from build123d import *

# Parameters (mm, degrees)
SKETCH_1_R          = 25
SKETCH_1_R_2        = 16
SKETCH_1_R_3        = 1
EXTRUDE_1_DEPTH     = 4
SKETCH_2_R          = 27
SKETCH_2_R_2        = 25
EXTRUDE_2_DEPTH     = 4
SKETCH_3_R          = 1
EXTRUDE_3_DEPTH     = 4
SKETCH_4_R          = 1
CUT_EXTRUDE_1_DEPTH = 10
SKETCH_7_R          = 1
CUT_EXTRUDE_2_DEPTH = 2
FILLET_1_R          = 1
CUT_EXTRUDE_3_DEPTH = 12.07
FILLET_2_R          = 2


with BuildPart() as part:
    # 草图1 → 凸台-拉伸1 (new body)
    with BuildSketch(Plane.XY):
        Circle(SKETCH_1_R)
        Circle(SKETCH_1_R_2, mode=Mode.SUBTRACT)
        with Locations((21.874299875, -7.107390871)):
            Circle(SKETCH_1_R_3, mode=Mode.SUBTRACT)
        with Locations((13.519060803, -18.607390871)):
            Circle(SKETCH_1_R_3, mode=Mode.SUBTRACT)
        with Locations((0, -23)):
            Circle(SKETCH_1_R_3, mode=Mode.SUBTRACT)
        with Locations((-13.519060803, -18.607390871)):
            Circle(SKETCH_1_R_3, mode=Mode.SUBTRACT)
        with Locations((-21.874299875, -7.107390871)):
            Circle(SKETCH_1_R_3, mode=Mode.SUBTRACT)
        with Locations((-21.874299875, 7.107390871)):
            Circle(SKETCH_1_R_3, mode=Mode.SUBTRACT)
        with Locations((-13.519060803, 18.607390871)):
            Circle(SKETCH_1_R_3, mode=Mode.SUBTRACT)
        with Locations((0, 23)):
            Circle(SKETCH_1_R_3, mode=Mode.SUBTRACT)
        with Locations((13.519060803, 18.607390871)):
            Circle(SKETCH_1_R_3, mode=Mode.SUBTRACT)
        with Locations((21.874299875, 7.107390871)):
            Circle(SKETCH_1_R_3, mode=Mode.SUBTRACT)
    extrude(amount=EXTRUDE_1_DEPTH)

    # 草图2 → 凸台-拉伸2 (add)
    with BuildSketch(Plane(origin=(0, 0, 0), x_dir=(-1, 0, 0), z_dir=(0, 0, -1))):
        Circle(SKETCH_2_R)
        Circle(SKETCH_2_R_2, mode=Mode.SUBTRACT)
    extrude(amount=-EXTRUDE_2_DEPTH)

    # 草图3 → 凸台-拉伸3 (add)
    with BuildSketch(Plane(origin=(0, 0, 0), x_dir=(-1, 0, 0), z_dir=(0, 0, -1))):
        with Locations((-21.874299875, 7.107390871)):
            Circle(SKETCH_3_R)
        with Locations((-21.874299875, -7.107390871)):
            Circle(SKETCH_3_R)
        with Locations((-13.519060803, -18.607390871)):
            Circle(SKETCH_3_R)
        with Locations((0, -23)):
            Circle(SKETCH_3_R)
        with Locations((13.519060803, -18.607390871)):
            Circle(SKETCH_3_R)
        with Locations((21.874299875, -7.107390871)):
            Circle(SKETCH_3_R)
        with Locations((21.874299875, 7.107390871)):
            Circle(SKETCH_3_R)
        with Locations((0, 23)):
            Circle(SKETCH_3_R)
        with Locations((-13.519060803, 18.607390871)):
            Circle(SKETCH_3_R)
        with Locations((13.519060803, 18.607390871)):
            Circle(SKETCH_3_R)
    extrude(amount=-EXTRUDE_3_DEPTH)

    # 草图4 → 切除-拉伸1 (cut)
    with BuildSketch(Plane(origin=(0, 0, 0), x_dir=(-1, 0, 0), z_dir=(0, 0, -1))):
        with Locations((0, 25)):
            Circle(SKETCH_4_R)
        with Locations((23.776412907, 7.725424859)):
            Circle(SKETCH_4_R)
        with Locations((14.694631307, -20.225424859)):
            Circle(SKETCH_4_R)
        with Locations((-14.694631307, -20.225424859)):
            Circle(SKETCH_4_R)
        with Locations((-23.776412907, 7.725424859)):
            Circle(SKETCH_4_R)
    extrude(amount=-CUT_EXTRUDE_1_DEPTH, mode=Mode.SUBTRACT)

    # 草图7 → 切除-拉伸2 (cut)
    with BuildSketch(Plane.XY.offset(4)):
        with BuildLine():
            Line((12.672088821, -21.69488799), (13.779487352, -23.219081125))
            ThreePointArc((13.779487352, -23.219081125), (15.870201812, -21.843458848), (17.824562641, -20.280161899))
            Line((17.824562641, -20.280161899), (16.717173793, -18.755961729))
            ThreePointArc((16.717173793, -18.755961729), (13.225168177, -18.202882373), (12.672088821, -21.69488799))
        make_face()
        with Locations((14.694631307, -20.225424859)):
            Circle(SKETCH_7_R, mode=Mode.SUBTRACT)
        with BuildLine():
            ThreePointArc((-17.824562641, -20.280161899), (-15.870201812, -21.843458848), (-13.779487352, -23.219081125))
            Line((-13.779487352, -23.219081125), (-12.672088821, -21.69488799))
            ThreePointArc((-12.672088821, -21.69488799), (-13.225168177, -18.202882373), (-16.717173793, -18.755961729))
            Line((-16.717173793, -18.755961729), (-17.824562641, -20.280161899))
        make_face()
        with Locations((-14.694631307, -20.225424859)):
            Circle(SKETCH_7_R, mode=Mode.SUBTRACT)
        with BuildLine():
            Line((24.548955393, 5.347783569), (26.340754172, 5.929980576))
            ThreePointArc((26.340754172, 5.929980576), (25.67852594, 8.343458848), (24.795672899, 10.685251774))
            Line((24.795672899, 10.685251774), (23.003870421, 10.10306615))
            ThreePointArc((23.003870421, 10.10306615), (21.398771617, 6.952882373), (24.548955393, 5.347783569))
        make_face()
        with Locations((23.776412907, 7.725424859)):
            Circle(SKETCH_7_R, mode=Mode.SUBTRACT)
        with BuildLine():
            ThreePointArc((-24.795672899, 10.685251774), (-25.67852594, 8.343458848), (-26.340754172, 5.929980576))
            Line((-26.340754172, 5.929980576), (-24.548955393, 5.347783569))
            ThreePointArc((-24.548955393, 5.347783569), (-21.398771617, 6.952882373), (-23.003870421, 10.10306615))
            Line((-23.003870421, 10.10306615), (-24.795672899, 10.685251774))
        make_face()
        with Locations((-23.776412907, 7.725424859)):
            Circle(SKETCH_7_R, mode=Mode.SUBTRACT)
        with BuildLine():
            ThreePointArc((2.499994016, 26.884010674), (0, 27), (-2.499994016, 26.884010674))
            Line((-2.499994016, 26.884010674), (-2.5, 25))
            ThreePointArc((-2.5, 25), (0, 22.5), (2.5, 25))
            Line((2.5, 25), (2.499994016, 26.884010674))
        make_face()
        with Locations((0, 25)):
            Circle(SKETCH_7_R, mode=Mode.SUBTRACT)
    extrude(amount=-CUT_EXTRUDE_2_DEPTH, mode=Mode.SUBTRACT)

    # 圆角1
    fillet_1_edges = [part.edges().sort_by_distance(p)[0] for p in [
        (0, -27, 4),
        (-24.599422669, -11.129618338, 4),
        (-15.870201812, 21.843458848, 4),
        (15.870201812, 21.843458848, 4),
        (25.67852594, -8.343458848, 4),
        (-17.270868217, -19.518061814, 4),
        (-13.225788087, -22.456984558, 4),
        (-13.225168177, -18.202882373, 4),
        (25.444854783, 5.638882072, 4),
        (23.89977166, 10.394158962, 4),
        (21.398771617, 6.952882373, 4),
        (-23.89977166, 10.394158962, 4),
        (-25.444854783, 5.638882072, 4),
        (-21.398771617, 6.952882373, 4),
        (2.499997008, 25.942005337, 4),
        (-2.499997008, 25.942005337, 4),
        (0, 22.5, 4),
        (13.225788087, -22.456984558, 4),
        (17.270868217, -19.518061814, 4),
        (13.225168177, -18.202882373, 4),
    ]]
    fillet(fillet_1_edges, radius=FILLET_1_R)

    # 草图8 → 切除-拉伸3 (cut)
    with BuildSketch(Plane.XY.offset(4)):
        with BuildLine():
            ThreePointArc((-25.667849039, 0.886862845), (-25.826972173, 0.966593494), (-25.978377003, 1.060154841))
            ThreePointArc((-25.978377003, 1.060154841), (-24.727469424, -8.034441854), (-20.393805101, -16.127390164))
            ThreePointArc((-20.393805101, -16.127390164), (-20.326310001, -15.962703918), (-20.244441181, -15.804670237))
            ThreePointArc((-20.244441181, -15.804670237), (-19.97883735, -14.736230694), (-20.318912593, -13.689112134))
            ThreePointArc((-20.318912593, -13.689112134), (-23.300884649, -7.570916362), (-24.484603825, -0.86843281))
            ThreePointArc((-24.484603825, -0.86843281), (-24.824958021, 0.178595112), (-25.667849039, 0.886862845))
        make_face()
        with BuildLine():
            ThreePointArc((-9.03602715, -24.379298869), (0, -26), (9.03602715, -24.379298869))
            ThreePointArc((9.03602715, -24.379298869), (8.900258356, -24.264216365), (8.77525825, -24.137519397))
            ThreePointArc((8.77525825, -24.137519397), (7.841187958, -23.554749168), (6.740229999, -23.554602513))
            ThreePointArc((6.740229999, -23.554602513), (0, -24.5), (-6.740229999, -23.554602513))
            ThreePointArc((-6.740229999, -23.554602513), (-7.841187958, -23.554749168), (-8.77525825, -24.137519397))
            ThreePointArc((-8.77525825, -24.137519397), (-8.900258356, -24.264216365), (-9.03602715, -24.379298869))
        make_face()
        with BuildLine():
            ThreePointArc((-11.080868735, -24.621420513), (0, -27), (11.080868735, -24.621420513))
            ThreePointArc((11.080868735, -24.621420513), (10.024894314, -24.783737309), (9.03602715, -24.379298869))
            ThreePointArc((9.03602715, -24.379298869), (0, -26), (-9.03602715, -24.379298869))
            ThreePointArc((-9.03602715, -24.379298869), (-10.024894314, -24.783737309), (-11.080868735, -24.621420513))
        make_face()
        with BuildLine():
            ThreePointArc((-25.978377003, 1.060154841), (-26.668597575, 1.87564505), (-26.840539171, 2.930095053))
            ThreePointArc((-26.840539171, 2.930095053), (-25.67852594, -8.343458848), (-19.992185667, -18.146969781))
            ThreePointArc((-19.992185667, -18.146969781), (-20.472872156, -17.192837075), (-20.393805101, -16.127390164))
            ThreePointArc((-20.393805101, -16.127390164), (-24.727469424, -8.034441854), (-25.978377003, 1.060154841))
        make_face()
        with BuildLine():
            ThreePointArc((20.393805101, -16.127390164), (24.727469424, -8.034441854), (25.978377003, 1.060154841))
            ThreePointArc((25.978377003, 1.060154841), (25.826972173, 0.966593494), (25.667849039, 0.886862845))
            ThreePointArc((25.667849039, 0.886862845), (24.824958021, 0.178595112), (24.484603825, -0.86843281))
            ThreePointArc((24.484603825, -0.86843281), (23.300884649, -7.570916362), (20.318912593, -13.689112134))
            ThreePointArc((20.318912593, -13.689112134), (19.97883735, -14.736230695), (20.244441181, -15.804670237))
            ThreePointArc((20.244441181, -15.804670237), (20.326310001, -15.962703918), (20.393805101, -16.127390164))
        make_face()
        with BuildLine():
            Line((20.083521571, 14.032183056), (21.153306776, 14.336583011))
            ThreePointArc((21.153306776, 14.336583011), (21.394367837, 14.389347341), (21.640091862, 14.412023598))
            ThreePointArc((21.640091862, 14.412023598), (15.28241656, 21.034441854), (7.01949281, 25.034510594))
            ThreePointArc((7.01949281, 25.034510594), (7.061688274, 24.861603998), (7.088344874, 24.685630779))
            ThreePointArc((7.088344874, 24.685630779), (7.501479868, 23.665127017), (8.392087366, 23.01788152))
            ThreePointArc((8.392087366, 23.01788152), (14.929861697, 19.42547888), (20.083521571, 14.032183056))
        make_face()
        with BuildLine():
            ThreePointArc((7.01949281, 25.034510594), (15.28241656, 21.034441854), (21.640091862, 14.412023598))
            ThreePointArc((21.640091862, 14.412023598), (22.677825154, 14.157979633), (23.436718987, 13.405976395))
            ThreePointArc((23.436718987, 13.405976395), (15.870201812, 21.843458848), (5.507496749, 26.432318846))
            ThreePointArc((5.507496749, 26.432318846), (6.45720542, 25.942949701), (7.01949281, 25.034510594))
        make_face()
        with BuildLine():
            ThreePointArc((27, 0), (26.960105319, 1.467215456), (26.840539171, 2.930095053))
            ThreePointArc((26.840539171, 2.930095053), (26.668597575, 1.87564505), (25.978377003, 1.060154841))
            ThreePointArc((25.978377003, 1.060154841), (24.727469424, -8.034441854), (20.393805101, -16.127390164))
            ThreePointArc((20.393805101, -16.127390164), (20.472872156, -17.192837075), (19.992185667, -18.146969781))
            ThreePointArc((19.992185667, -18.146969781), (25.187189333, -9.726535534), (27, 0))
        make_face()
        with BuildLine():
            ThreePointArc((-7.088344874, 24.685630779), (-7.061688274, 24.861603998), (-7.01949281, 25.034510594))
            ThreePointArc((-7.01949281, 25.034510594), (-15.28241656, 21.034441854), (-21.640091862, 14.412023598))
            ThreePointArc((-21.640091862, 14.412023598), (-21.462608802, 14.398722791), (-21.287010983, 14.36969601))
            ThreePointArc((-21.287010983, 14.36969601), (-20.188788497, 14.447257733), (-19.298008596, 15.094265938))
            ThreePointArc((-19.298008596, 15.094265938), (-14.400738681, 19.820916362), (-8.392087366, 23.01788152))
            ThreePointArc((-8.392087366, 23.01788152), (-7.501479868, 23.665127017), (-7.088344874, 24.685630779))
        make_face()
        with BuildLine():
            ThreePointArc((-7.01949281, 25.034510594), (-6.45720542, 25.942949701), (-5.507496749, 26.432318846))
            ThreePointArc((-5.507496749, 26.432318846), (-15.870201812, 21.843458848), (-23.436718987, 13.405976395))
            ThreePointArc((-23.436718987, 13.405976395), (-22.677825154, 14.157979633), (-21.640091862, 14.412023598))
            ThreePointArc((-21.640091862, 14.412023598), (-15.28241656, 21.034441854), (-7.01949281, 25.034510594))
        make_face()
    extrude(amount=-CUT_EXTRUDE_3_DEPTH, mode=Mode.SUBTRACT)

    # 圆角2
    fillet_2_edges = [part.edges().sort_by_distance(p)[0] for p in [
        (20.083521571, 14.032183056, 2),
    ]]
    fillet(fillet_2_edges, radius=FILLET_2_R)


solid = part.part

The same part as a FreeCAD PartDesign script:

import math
import FreeCAD as App
import Part
import Sketcher
from FreeCAD import Vector


def edges_at(feature, points):
    """Names of the edges that pass closest to the given points."""
    edges = feature.Shape.Edges
    near = lambda p: min(range(len(edges)), key=lambda i: edges[i].distToShape(Part.Vertex(*p))[0])
    return sorted({f"Edge{near(p) + 1}" for p in points})

doc = App.newDocument("Part")
body = doc.addObject("PartDesign::Body", "Body")

# Sketch on XY plane
sketch1 = doc.addObject("Sketcher::SketchObject", "Sketch")
body.addObject(sketch1)
sketch1.AttachmentSupport = (doc.XY_Plane, [""])
sketch1.MapMode = "FlatFace"
sketch1.addGeometry(Part.Circle(Vector(0, 0, 0), Vector(0, 0, 1), 25), False)
sketch1.addGeometry(Part.Circle(Vector(-13.5, -18.6, 0), Vector(0, 0, 1), 1), False)
sketch1.addGeometry(Part.Circle(Vector(-21.9, -7.1, 0), Vector(0, 0, 1), 1), False)
sketch1.addGeometry(Part.Circle(Vector(0, -23, 0), Vector(0, 0, 1), 1), False)
sketch1.addGeometry(Part.Circle(Vector(13.5, -18.6, 0), Vector(0, 0, 1), 1), False)
sketch1.addGeometry(Part.Circle(Vector(21.9, -7.1, 0), Vector(0, 0, 1), 1), False)
sketch1.addGeometry(Part.Circle(Vector(-21.9, 7.1, 0), Vector(0, 0, 1), 1), False)
sketch1.addGeometry(Part.Circle(Vector(-13.5, 18.6, 0), Vector(0, 0, 1), 1), False)
sketch1.addGeometry(Part.Circle(Vector(0, 0, 0), Vector(0, 0, 1), 16), False)
sketch1.addGeometry(Part.Circle(Vector(21.9, 7.1, 0), Vector(0, 0, 1), 1), False)
sketch1.addGeometry(Part.Circle(Vector(0, 23, 0), Vector(0, 0, 1), 1), False)
sketch1.addGeometry(Part.Circle(Vector(13.5, 18.6, 0), Vector(0, 0, 1), 1), False)
sketch1.addConstraint(Sketcher.Constraint("Coincident", 0, 3, -1, 1))
sketch1.addConstraint(Sketcher.Constraint("Coincident", 8, 3, -1, 1))
sketch1.addConstraint(Sketcher.Constraint("Equal", 1, 2))
sketch1.addConstraint(Sketcher.Constraint("Equal", 2, 3))
sketch1.addConstraint(Sketcher.Constraint("Equal", 3, 4))
sketch1.addConstraint(Sketcher.Constraint("Equal", 4, 5))
sketch1.addConstraint(Sketcher.Constraint("Equal", 5, 6))
sketch1.addConstraint(Sketcher.Constraint("Equal", 6, 7))
sketch1.addConstraint(Sketcher.Constraint("Equal", 7, 9))
sketch1.addConstraint(Sketcher.Constraint("Equal", 9, 10))
sketch1.addConstraint(Sketcher.Constraint("Equal", 10, 11))
sketch1.addConstraint(Sketcher.Constraint("Symmetric", 5, 3, 6, 3, -1, 1))
sketch1.addConstraint(Sketcher.Constraint("Symmetric", 4, 3, 7, 3, -1, 1))
sketch1.addConstraint(Sketcher.Constraint("Symmetric", 2, 3, 9, 3, -1, 1))
sketch1.addConstraint(Sketcher.Constraint("Symmetric", 3, 3, 10, 3, -1, 1))
sketch1.addConstraint(Sketcher.Constraint("Symmetric", 1, 3, 11, 3, -1, 1))
sketch1.addConstraint(Sketcher.Constraint("Symmetric", 1, 3, 4, 3, -2))
sketch1.addConstraint(Sketcher.Constraint("Symmetric", 2, 3, 5, 3, -2))
sketch1.addConstraint(Sketcher.Constraint("PointOnObject", 3, 3, -2))
sketch1.addConstraint(Sketcher.Constraint("Diameter", 0, 50.0))
sketch1.addConstraint(Sketcher.Constraint("Diameter", 1, 2.0))
sketch1.addConstraint(Sketcher.Constraint("Diameter", 8, 32.0))
sketch1.addConstraint(Sketcher.Constraint("DistanceY", 3, 3, -1, 1, 23.0))
sketch1.addConstraint(Sketcher.Constraint("DistanceY", 1, 3, 2, 3, 11.5))
sketch1.addConstraint(Sketcher.Constraint("DistanceX", 2, 3, -1, 1, 21.8743))
sketch1.addConstraint(Sketcher.Constraint("DistanceX", 1, 3, -1, 1, 13.519061))
sketch1.addConstraint(Sketcher.Constraint("DistanceY", 1, 3, -1, 1, 18.607391))
pad1 = doc.addObject("PartDesign::Pad", "Pad")
body.addObject(pad1)
pad1.Profile = sketch1
pad1.Length = 4

# Sketch on XY plane
sketch2 = doc.addObject("Sketcher::SketchObject", "Sketch001")
body.addObject(sketch2)
sketch2.AttachmentSupport = (doc.XY_Plane, [""])
sketch2.MapMode = "FlatFace"
sketch2.addGeometry(Part.Circle(Vector(0, 0, 0), Vector(0, 0, 1), 27), False)
sketch2.addGeometry(Part.Circle(Vector(0, 0, 0), Vector(0, 0, 1), 25), False)
sketch2.addConstraint(Sketcher.Constraint("Coincident", 0, 3, -1, 1))
sketch2.addConstraint(Sketcher.Constraint("Coincident", 1, 3, -1, 1))
sketch2.addConstraint(Sketcher.Constraint("Diameter", 0, 54.0))
sketch2.addConstraint(Sketcher.Constraint("Diameter", 1, 50.0))
pad2 = doc.addObject("PartDesign::Pad", "Pad001")
body.addObject(pad2)
pad2.Profile = sketch2
pad2.Length = 4

# Sketch on XY plane
sketch3 = doc.addObject("Sketcher::SketchObject", "Sketch002")
body.addObject(sketch3)
sketch3.AttachmentSupport = (doc.XY_Plane, [""])
sketch3.MapMode = "FlatFace"
sketch3.addGeometry(Part.Circle(Vector(21.9, 7.1, 0), Vector(0, 0, 1), 1), False)
sketch3.addGeometry(Part.Circle(Vector(21.9, -7.1, 0), Vector(0, 0, 1), 1), False)
sketch3.addGeometry(Part.Circle(Vector(13.5, -18.6, 0), Vector(0, 0, 1), 1), False)
sketch3.addGeometry(Part.Circle(Vector(0, -23, 0), Vector(0, 0, 1), 1), False)
sketch3.addGeometry(Part.Circle(Vector(-13.5, -18.6, 0), Vector(0, 0, 1), 1), False)
sketch3.addGeometry(Part.Circle(Vector(-21.9, -7.1, 0), Vector(0, 0, 1), 1), False)
sketch3.addGeometry(Part.Circle(Vector(-21.9, 7.1, 0), Vector(0, 0, 1), 1), False)
sketch3.addGeometry(Part.Circle(Vector(0, 23, 0), Vector(0, 0, 1), 1), False)
sketch3.addGeometry(Part.Circle(Vector(13.5, 18.6, 0), Vector(0, 0, 1), 1), False)
sketch3.addGeometry(Part.Circle(Vector(-13.5, 18.6, 0), Vector(0, 0, 1), 1), False)
sketch3.addConstraint(Sketcher.Constraint("Equal", 0, 1))
sketch3.addConstraint(Sketcher.Constraint("Equal", 1, 2))
sketch3.addConstraint(Sketcher.Constraint("Equal", 2, 3))
sketch3.addConstraint(Sketcher.Constraint("Equal", 3, 4))
sketch3.addConstraint(Sketcher.Constraint("Equal", 4, 5))
sketch3.addConstraint(Sketcher.Constraint("Equal", 5, 6))
sketch3.addConstraint(Sketcher.Constraint("Equal", 6, 7))
sketch3.addConstraint(Sketcher.Constraint("Equal", 7, 8))
sketch3.addConstraint(Sketcher.Constraint("Equal", 8, 9))
sketch3.addConstraint(Sketcher.Constraint("Symmetric", 0, 3, 5, 3, -1, 1))
sketch3.addConstraint(Sketcher.Constraint("Symmetric", 1, 3, 6, 3, -1, 1))
sketch3.addConstraint(Sketcher.Constraint("Symmetric", 3, 3, 7, 3, -1, 1))
sketch3.addConstraint(Sketcher.Constraint("Symmetric", 4, 3, 8, 3, -1, 1))
sketch3.addConstraint(Sketcher.Constraint("Symmetric", 2, 3, 9, 3, -1, 1))
sketch3.addConstraint(Sketcher.Constraint("Symmetric", 2, 3, 4, 3, -2))
sketch3.addConstraint(Sketcher.Constraint("Symmetric", 1, 3, 5, 3, -2))
sketch3.addConstraint(Sketcher.Constraint("PointOnObject", 3, 3, -2))
sketch3.addConstraint(Sketcher.Constraint("Diameter", 0, 2.0))
sketch3.addConstraint(Sketcher.Constraint("DistanceY", 3, 3, -1, 1, 23.0))
sketch3.addConstraint(Sketcher.Constraint("DistanceY", 2, 3, 1, 3, 11.5))
sketch3.addConstraint(Sketcher.Constraint("DistanceX", -1, 1, 0, 3, 21.8743))
sketch3.addConstraint(Sketcher.Constraint("DistanceY", -1, 1, 0, 3, 7.107391))
sketch3.addConstraint(Sketcher.Constraint("DistanceX", -1, 1, 2, 3, 13.519061))
pad3 = doc.addObject("PartDesign::Pad", "Pad002")
body.addObject(pad3)
pad3.Profile = sketch3
pad3.Length = 4

# Sketch on XY plane
sketch4 = doc.addObject("Sketcher::SketchObject", "Sketch003")
body.addObject(sketch4)
sketch4.AttachmentSupport = (doc.XY_Plane, [""])
sketch4.MapMode = "FlatFace"
sketch4.addGeometry(Part.Circle(Vector(0, 25, 0), Vector(0, 0, 1), 1), False)
sketch4.addGeometry(Part.Circle(Vector(-23.8, 7.7, 0), Vector(0, 0, 1), 1), False)
sketch4.addGeometry(Part.Circle(Vector(-14.7, -20.2, 0), Vector(0, 0, 1), 1), False)
sketch4.addGeometry(Part.Circle(Vector(14.7, -20.2, 0), Vector(0, 0, 1), 1), False)
sketch4.addGeometry(Part.Circle(Vector(23.8, 7.7, 0), Vector(0, 0, 1), 1), False)
sketch4.addConstraint(Sketcher.Constraint("Equal", 0, 1))
sketch4.addConstraint(Sketcher.Constraint("Equal", 1, 2))
sketch4.addConstraint(Sketcher.Constraint("Equal", 2, 3))
sketch4.addConstraint(Sketcher.Constraint("Equal", 3, 4))
sketch4.addConstraint(Sketcher.Constraint("Symmetric", 2, 3, 3, 3, -2))
sketch4.addConstraint(Sketcher.Constraint("Symmetric", 1, 3, 4, 3, -2))
sketch4.addConstraint(Sketcher.Constraint("PointOnObject", 0, 3, -2))
sketch4.addConstraint(Sketcher.Constraint("Diameter", 0, 2.0))
sketch4.addConstraint(Sketcher.Constraint("DistanceY", -1, 1, 0, 3, 25.0))
sketch4.addConstraint(Sketcher.Constraint("DistanceX", 2, 3, -1, 1, 14.694631))
sketch4.addConstraint(Sketcher.Constraint("DistanceX", 1, 3, 2, 3, 9.081782))
sketch4.addConstraint(Sketcher.Constraint("DistanceY", 2, 3, 1, 3, 27.95085))
sketch4.addConstraint(Sketcher.Constraint("DistanceY", -1, 1, 1, 3, 7.725425))
pocket1 = doc.addObject("PartDesign::Pocket", "Pocket")
body.addObject(pocket1)
pocket1.Profile = sketch4
pocket1.Length = 10
pocket1.Reversed = True

# Sketch on XY plane
sketch5 = doc.addObject("Sketcher::SketchObject", "Sketch004")
body.addObject(sketch5)
sketch5.AttachmentSupport = (doc.XY_Plane, [""])
sketch5.MapMode = "FlatFace"
sketch5.AttachmentOffset = App.Placement(Vector(0, 0, 4), App.Rotation())
sketch5.addGeometry(Part.LineSegment(Vector(12.7, -21.7, 0), Vector(13.8, -23.2, 0)), False)
sketch5.addGeometry(Part.ArcOfCircle(Part.Circle(Vector(0, 0, 0), Vector(0, 0, 1), 27), math.radians(-59.31), math.radians(-48.69)), False)
sketch5.addGeometry(Part.LineSegment(Vector(17.8, -20.3, 0), Vector(16.7, -18.8, 0)), False)
sketch5.addGeometry(Part.ArcOfCircle(Part.Circle(Vector(14.7, -20.2, 0), Vector(0, 0, 1), 2.5), math.radians(36), math.radians(216)), False)
sketch5.addGeometry(Part.Circle(Vector(14.7, -20.2, 0), Vector(0, 0, 1), 1), False)
sketch5.addGeometry(Part.ArcOfCircle(Part.Circle(Vector(0, 0, 0), Vector(0, 0, 1), 27), math.radians(-131.31), math.radians(-120.69)), False)
sketch5.addGeometry(Part.LineSegment(Vector(-13.8, -23.2, 0), Vector(-12.7, -21.7, 0)), False)
sketch5.addGeometry(Part.ArcOfCircle(Part.Circle(Vector(-14.7, -20.2, 0), Vector(0, 0, 1), 2.5), math.radians(-36), math.radians(144)), False)
sketch5.addGeometry(Part.LineSegment(Vector(-16.7, -18.8, 0), Vector(-17.8, -20.3, 0)), False)
sketch5.addGeometry(Part.Circle(Vector(-14.7, -20.2, 0), Vector(0, 0, 1), 1), False)
sketch5.addGeometry(Part.LineSegment(Vector(24.5, 5.3, 0), Vector(26.3, 5.9, 0)), False)
sketch5.addGeometry(Part.ArcOfCircle(Part.Circle(Vector(0, 0, 0), Vector(0, 0, 1), 27), math.radians(12.69), math.radians(23.31)), False)
sketch5.addGeometry(Part.LineSegment(Vector(24.8, 10.7, 0), Vector(23, 10.1, 0)), False)
sketch5.addGeometry(Part.ArcOfCircle(Part.Circle(Vector(23.8, 7.7, 0), Vector(0, 0, 1), 2.5), math.radians(108), math.radians(288)), False)
sketch5.addGeometry(Part.Circle(Vector(23.8, 7.7, 0), Vector(0, 0, 1), 1), False)
sketch5.addGeometry(Part.ArcOfCircle(Part.Circle(Vector(0, 0, 0), Vector(0, 0, 1), 27), math.radians(156.69), math.radians(167.31)), False)
sketch5.addGeometry(Part.LineSegment(Vector(-26.3, 5.9, 0), Vector(-24.5, 5.3, 0)), False)
sketch5.addGeometry(Part.ArcOfCircle(Part.Circle(Vector(-23.8, 7.7, 0), Vector(0, 0, 1), 2.5), math.radians(-108), math.radians(72)), False)
sketch5.addGeometry(Part.LineSegment(Vector(-23, 10.1, 0), Vector(-24.8, 10.7, 0)), False)
sketch5.addGeometry(Part.Circle(Vector(-23.8, 7.7, 0), Vector(0, 0, 1), 1), False)
sketch5.addGeometry(Part.ArcOfCircle(Part.Circle(Vector(0, 0, 0), Vector(0, 0, 1), 27), math.radians(84.69), math.radians(95.31)), False)
sketch5.addGeometry(Part.LineSegment(Vector(-2.5, 26.9, 0), Vector(-2.5, 25, 0)), False)
sketch5.addGeometry(Part.ArcOfCircle(Part.Circle(Vector(0, 25, 0), Vector(0, 0, 1), 2.5), math.radians(180), math.radians(360)), False)
sketch5.addGeometry(Part.LineSegment(Vector(2.5, 25, 0), Vector(2.5, 26.9, 0)), False)
sketch5.addGeometry(Part.Circle(Vector(0, 25, 0), Vector(0, 0, 1), 1), False)
sketch5.addConstraint(Sketcher.Constraint("Coincident", 0, 2, 1, 1))
sketch5.addConstraint(Sketcher.Constraint("Coincident", 1, 2, 2, 1))
sketch5.addConstraint(Sketcher.Constraint("Coincident", 2, 2, 3, 1))
sketch5.addConstraint(Sketcher.Constraint("Coincident", 3, 2, 0, 1))
sketch5.addConstraint(Sketcher.Constraint("Coincident", 5, 2, 6, 1))
sketch5.addConstraint(Sketcher.Constraint("Coincident", 6, 2, 7, 1))
sketch5.addConstraint(Sketcher.Constraint("Coincident", 7, 2, 8, 1))
sketch5.addConstraint(Sketcher.Constraint("Coincident", 8, 2, 5, 1))
sketch5.addConstraint(Sketcher.Constraint("Coincident", 10, 2, 11, 1))
sketch5.addConstraint(Sketcher.Constraint("Coincident", 11, 2, 12, 1))
sketch5.addConstraint(Sketcher.Constraint("Coincident", 12, 2, 13, 1))
sketch5.addConstraint(Sketcher.Constraint("Coincident", 13, 2, 10, 1))
sketch5.addConstraint(Sketcher.Constraint("Coincident", 15, 2, 16, 1))
sketch5.addConstraint(Sketcher.Constraint("Coincident", 16, 2, 17, 1))
sketch5.addConstraint(Sketcher.Constraint("Coincident", 17, 2, 18, 1))
sketch5.addConstraint(Sketcher.Constraint("Coincident", 18, 2, 15, 1))
sketch5.addConstraint(Sketcher.Constraint("Coincident", 20, 2, 21, 1))
sketch5.addConstraint(Sketcher.Constraint("Coincident", 21, 2, 22, 1))
sketch5.addConstraint(Sketcher.Constraint("Coincident", 22, 2, 23, 1))
sketch5.addConstraint(Sketcher.Constraint("Coincident", 23, 2, 20, 1))
sketch5.addConstraint(Sketcher.Constraint("Coincident", 1, 3, -1, 1))
sketch5.addConstraint(Sketcher.Constraint("Coincident", 5, 3, -1, 1))
sketch5.addConstraint(Sketcher.Constraint("Coincident", 11, 3, -1, 1))
sketch5.addConstraint(Sketcher.Constraint("Coincident", 15, 3, -1, 1))
sketch5.addConstraint(Sketcher.Constraint("Coincident", 20, 3, -1, 1))
sketch5.addConstraint(Sketcher.Constraint("Coincident", 4, 3, 3, 3))
sketch5.addConstraint(Sketcher.Constraint("Coincident", 9, 3, 7, 3))
sketch5.addConstraint(Sketcher.Constraint("Coincident", 14, 3, 13, 3))
sketch5.addConstraint(Sketcher.Constraint("Coincident", 19, 3, 17, 3))
sketch5.addConstraint(Sketcher.Constraint("Coincident", 24, 3, 22, 3))
sketch5.addConstraint(Sketcher.Constraint("Equal", 1, 5))
sketch5.addConstraint(Sketcher.Constraint("Equal", 3, 7))
sketch5.addConstraint(Sketcher.Constraint("Equal", 4, 9))
sketch5.addConstraint(Sketcher.Constraint("Equal", 5, 11))
sketch5.addConstraint(Sketcher.Constraint("Equal", 7, 13))
sketch5.addConstraint(Sketcher.Constraint("Equal", 9, 14))
sketch5.addConstraint(Sketcher.Constraint("Equal", 11, 15))
sketch5.addConstraint(Sketcher.Constraint("Equal", 13, 17))
sketch5.addConstraint(Sketcher.Constraint("Equal", 14, 19))
sketch5.addConstraint(Sketcher.Constraint("Equal", 15, 20))
sketch5.addConstraint(Sketcher.Constraint("Equal", 17, 22))
sketch5.addConstraint(Sketcher.Constraint("Equal", 19, 24))
sketch5.addConstraint(Sketcher.Constraint("Symmetric", 3, 3, 7, 3, -2))
sketch5.addConstraint(Sketcher.Constraint("Symmetric", 13, 3, 17, 3, -2))
sketch5.addConstraint(Sketcher.Constraint("Symmetric", 21, 2, 22, 2, -2))
sketch5.addConstraint(Sketcher.Constraint("Horizontal", 0, 2, 5, 2))
sketch5.addConstraint(Sketcher.Constraint("Horizontal", 3, 2, 6, 2))
sketch5.addConstraint(Sketcher.Constraint("Horizontal", 2, 2, 7, 2))
sketch5.addConstraint(Sketcher.Constraint("Horizontal", 1, 2, 8, 2))
sketch5.addConstraint(Sketcher.Constraint("Horizontal", 10, 2, 15, 2))
sketch5.addConstraint(Sketcher.Constraint("Horizontal", 13, 2, 16, 2))
sketch5.addConstraint(Sketcher.Constraint("Horizontal", 12, 2, 17, 2))
sketch5.addConstraint(Sketcher.Constraint("Horizontal", 11, 2, 18, 2))
sketch5.addConstraint(Sketcher.Constraint("Horizontal", 24, 3, 21, 2))
sketch5.addConstraint(Sketcher.Constraint("Horizontal", 20, 2, 23, 2))
sketch5.addConstraint(Sketcher.Constraint("Equal", 0, 2))
sketch5.addConstraint(Sketcher.Constraint("Equal", 8, 10))
sketch5.addConstraint(Sketcher.Constraint("Equal", 10, 12))
sketch5.addConstraint(Sketcher.Constraint("Equal", 18, 21))
sketch5.addConstraint(Sketcher.Constraint("Diameter", 4, 2.0))
sketch5.addConstraint(Sketcher.Constraint("Radius", 1, 27.0))
sketch5.addConstraint(Sketcher.Constraint("Radius", 3, 2.5))
sketch5.addConstraint(Sketcher.Constraint("DistanceY", -1, 1, 22, 3, 25.0))
sketch5.addConstraint(Sketcher.Constraint("DistanceY", 1, 2, 2, 2, 1.5242))
sketch5.addConstraint(Sketcher.Constraint("DistanceX", 3, 2, 0, 2, 1.107399))
sketch5.addConstraint(Sketcher.Constraint("DistanceX", 13, 2, 10, 2, 1.791799))
sketch5.addConstraint(Sketcher.Constraint("Distance", 0, 1.884011))
sketch5.addConstraint(Sketcher.Constraint("DistanceX", -1, 1, 3, 3, 14.694631))
sketch5.addConstraint(Sketcher.Constraint("DistanceY", 0, 2, -1, 1, 23.219081))
sketch5.addConstraint(Sketcher.Constraint("DistanceY", -1, 1, 10, 2, 5.929981))
sketch5.addConstraint(Sketcher.Constraint("DistanceY", -1, 1, 11, 2, 10.685252))
sketch5.addConstraint(Sketcher.Constraint("DistanceX", 3, 3, 13, 3, 9.081782))
pocket2 = doc.addObject("PartDesign::Pocket", "Pocket001")
body.addObject(pocket2)
pocket2.Profile = sketch5
pocket2.Length = 2
doc.recompute()

fillet = doc.addObject("PartDesign::Fillet", "Fillet")
body.addObject(fillet)
fillet.Base = (pocket2, edges_at(pocket2, [
    (0, -27, 4),
    (-24.599, -11.13, 4),
    (-15.87, 21.843, 4),
    (15.87, 21.843, 4),
    (25.679, -8.343, 4),
    (-17.271, -19.518, 4),
    (-13.226, -22.457, 4),
    (-13.225, -18.203, 4),
    (25.445, 5.639, 4),
    (23.9, 10.394, 4),
    (21.399, 6.953, 4),
    (-23.9, 10.394, 4),
    (-25.445, 5.639, 4),
    (-21.399, 6.953, 4),
    (2.5, 25.942, 4),
    (-2.5, 25.942, 4),
    (0, 22.5, 4),
    (13.226, -22.457, 4),
    (17.271, -19.518, 4),
    (13.225, -18.203, 4),
]))
fillet.Radius = 1

# Sketch on XY plane
sketch6 = doc.addObject("Sketcher::SketchObject", "Sketch005")
body.addObject(sketch6)
sketch6.AttachmentSupport = (doc.XY_Plane, [""])
sketch6.MapMode = "FlatFace"
sketch6.AttachmentOffset = App.Placement(Vector(0, 0, 4), App.Rotation())
sketch6.addGeometry(Part.ArcOfCircle(Part.Circle(Vector(-24.85, 2.71, 0), Vector(0, 0, 1), 2), math.radians(-124.26), math.radians(-114.06)), False)
sketch6.addGeometry(Part.ArcOfCircle(Part.Circle(Vector(-24.85, 2.71, 0), Vector(0, 0, 1), 2), math.radians(174), math.radians(236)), False)
sketch6.addGeometry(Part.ArcOfCircle(Part.Circle(Vector(0, 0, 0), Vector(0, 0, 1), 27), math.radians(174), math.radians(222)), False)
sketch6.addGeometry(Part.ArcOfCircle(Part.Circle(Vector(-18.51, -16.8, 0), Vector(0, 0, 1), 2), math.radians(160), math.radians(222)), False)
sketch6.addGeometry(Part.ArcOfCircle(Part.Circle(Vector(-18.51, -16.8, 0), Vector(0, 0, 1), 2), math.radians(150.06), math.radians(160.26)), False)
sketch6.addGeometry(Part.ArcOfCircle(Part.Circle(Vector(-21.98, -14.81, 0), Vector(0, 0, 1), 2), math.radians(-30), math.radians(34)), False)
sketch6.addGeometry(Part.ArcOfCircle(Part.Circle(Vector(0, 0, 0), Vector(0, 0, 1), 24.5), math.radians(-178), math.radians(-146)), False)
sketch6.addGeometry(Part.ArcOfCircle(Part.Circle(Vector(-26.48, -0.94, 0), Vector(0, 0, 1), 2), math.radians(2), math.radians(66)), False)
sketch6.addGeometry(Part.ArcOfCircle(Part.Circle(Vector(10.26, -22.8, 0), Vector(0, 0, 1), 2), math.radians(-137.94), math.radians(-127.74)), False)
sketch6.addGeometry(Part.ArcOfCircle(Part.Circle(Vector(7.29, -25.48, 0), Vector(0, 0, 1), 2), math.radians(42), math.radians(106)), False)
sketch6.addGeometry(Part.ArcOfCircle(Part.Circle(Vector(0, 0, 0), Vector(0, 0, 1), 24.5), math.radians(-106), math.radians(-74)), False)
sketch6.addGeometry(Part.ArcOfCircle(Part.Circle(Vector(-7.29, -25.48, 0), Vector(0, 0, 1), 2), math.radians(74), math.radians(138)), False)
sketch6.addGeometry(Part.ArcOfCircle(Part.Circle(Vector(-10.26, -22.8, 0), Vector(0, 0, 1), 2), math.radians(-52.26), math.radians(-42.06)), False)
sketch6.addGeometry(Part.ArcOfCircle(Part.Circle(Vector(-10.26, -22.8, 0), Vector(0, 0, 1), 2), math.radians(-114), math.radians(-52)), False)
sketch6.addGeometry(Part.ArcOfCircle(Part.Circle(Vector(0, 0, 0), Vector(0, 0, 1), 27), math.radians(-114), math.radians(-66)), False)
sketch6.addGeometry(Part.ArcOfCircle(Part.Circle(Vector(10.26, -22.8, 0), Vector(0, 0, 1), 2), math.radians(-128), math.radians(-66)), False)
sketch6.addGeometry(Part.ArcOfCircle(Part.Circle(Vector(24.85, 2.71, 0), Vector(0, 0, 1), 2), math.radians(-65.94), math.radians(-55.74)), False)
sketch6.addGeometry(Part.ArcOfCircle(Part.Circle(Vector(26.48, -0.94, 0), Vector(0, 0, 1), 2), math.radians(114), math.radians(178)), False)
sketch6.addGeometry(Part.ArcOfCircle(Part.Circle(Vector(0, 0, 0), Vector(0, 0, 1), 24.5), math.radians(-34), math.radians(-2)), False)
sketch6.addGeometry(Part.ArcOfCircle(Part.Circle(Vector(21.98, -14.81, 0), Vector(0, 0, 1), 2), math.radians(146), math.radians(210)), False)
sketch6.addGeometry(Part.ArcOfCircle(Part.Circle(Vector(18.51, -16.8, 0), Vector(0, 0, 1), 2), math.radians(19.74), math.radians(29.94)), False)
sketch6.addGeometry(Part.ArcOfCircle(Part.Circle(Vector(18.51, -16.8, 0), Vector(0, 0, 1), 2), math.radians(-42), math.radians(20)), False)
sketch6.addGeometry(Part.ArcOfCircle(Part.Circle(Vector(0, 0, 0), Vector(0, 0, 1), 27), math.radians(-42), math.radians(0)), False)
sketch6.addGeometry(Part.ArcOfCircle(Part.Circle(Vector(0, 0, 0), Vector(0, 0, 1), 27), math.radians(0), math.radians(6.23)), False)
sketch6.addGeometry(Part.ArcOfCircle(Part.Circle(Vector(24.85, 2.71, 0), Vector(0, 0, 1), 2), math.radians(-56), math.radians(6)), False)
sketch6.addGeometry(Part.LineSegment(Vector(20.08, 14.03, 0), Vector(21.15, 14.34, 0)), False)
sketch6.addGeometry(Part.ArcOfCircle(Part.Circle(Vector(21.7, 12.41, 0), Vector(0, 0, 1), 2), math.radians(91.74), math.radians(105.88)), False)
sketch6.addGeometry(Part.ArcOfCircle(Part.Circle(Vector(21.7, 12.41, 0), Vector(0, 0, 1), 2), math.radians(30), math.radians(92)), False)
sketch6.addGeometry(Part.ArcOfCircle(Part.Circle(Vector(0, 0, 0), Vector(0, 0, 1), 27), math.radians(30), math.radians(78)), False)
sketch6.addGeometry(Part.ArcOfCircle(Part.Circle(Vector(5.1, 24.47, 0), Vector(0, 0, 1), 2), math.radians(16), math.radians(78)), False)
sketch6.addGeometry(Part.ArcOfCircle(Part.Circle(Vector(5.1, 24.47, 0), Vector(0, 0, 1), 2), math.radians(6.06), math.radians(16.26)), False)
sketch6.addGeometry(Part.ArcOfCircle(Part.Circle(Vector(9.08, 24.9, 0), Vector(0, 0, 1), 2), math.radians(-174), math.radians(-110)), False)
sketch6.addGeometry(Part.ArcOfCircle(Part.Circle(Vector(0, 0, 0), Vector(0, 0, 1), 24.5), math.radians(35), math.radians(70)), False)
sketch6.addGeometry(Part.ArcOfCircle(Part.Circle(Vector(-5.1, 24.47, 0), Vector(0, 0, 1), 2), math.radians(163.74), math.radians(173.94)), False)
sketch6.addGeometry(Part.ArcOfCircle(Part.Circle(Vector(-5.1, 24.47, 0), Vector(0, 0, 1), 2), math.radians(102), math.radians(164)), False)
sketch6.addGeometry(Part.ArcOfCircle(Part.Circle(Vector(0, 0, 0), Vector(0, 0, 1), 27), math.radians(102), math.radians(150)), False)
sketch6.addGeometry(Part.ArcOfCircle(Part.Circle(Vector(-21.7, 12.41, 0), Vector(0, 0, 1), 2), math.radians(88), math.radians(150)), False)
sketch6.addGeometry(Part.ArcOfCircle(Part.Circle(Vector(-21.7, 12.41, 0), Vector(0, 0, 1), 2), math.radians(78.06), math.radians(88.26)), False)
sketch6.addGeometry(Part.ArcOfCircle(Part.Circle(Vector(-20.87, 16.33, 0), Vector(0, 0, 1), 2), math.radians(-102), math.radians(-38)), False)
sketch6.addGeometry(Part.ArcOfCircle(Part.Circle(Vector(0, 0, 0), Vector(0, 0, 1), 24.5), math.radians(110), math.radians(142)), False)
sketch6.addGeometry(Part.ArcOfCircle(Part.Circle(Vector(-9.08, 24.9, 0), Vector(0, 0, 1), 2), math.radians(-70), math.radians(-6)), False)
sketch6.addConstraint(Sketcher.Constraint("Tangent", 0, 1, 1, 2))
sketch6.addConstraint(Sketcher.Constraint("Tangent", 1, 1, 2, 1))
sketch6.addConstraint(Sketcher.Constraint("Tangent", 2, 2, 3, 2))
sketch6.addConstraint(Sketcher.Constraint("Tangent", 3, 1, 4, 2))
sketch6.addConstraint(Sketcher.Constraint("Tangent", 4, 1, 5, 1))
sketch6.addConstraint(Sketcher.Constraint("Tangent", 5, 2, 6, 2))
sketch6.addConstraint(Sketcher.Constraint("Tangent", 6, 1, 7, 1))
sketch6.addConstraint(Sketcher.Constraint("Tangent", 7, 2, 0, 2))
sketch6.addConstraint(Sketcher.Constraint("Tangent", 8, 1, 9, 1))
sketch6.addConstraint(Sketcher.Constraint("Tangent", 9, 2, 10, 2))
sketch6.addConstraint(Sketcher.Constraint("Tangent", 10, 1, 11, 1))
sketch6.addConstraint(Sketcher.Constraint("Tangent", 11, 2, 12, 2))
sketch6.addConstraint(Sketcher.Constraint("Tangent", 12, 1, 13, 2))
sketch6.addConstraint(Sketcher.Constraint("Tangent", 13, 1, 14, 1))
sketch6.addConstraint(Sketcher.Constraint("Tangent", 14, 2, 15, 2))
sketch6.addConstraint(Sketcher.Constraint("Tangent", 15, 1, 8, 2))
sketch6.addConstraint(Sketcher.Constraint("Tangent", 16, 1, 17, 1))
sketch6.addConstraint(Sketcher.Constraint("Tangent", 17, 2, 18, 2))
sketch6.addConstraint(Sketcher.Constraint("Tangent", 18, 1, 19, 1))
sketch6.addConstraint(Sketcher.Constraint("Tangent", 19, 2, 20, 2))
sketch6.addConstraint(Sketcher.Constraint("Tangent", 20, 1, 21, 2))
sketch6.addConstraint(Sketcher.Constraint("Tangent", 21, 1, 22, 1))
sketch6.addConstraint(Sketcher.Constraint("Tangent", 22, 2, 23, 1))
sketch6.addConstraint(Sketcher.Constraint("Tangent", 23, 2, 24, 2))
sketch6.addConstraint(Sketcher.Constraint("Tangent", 24, 1, 16, 2))
sketch6.addConstraint(Sketcher.Constraint("Tangent", 25, 2, 26, 2))
sketch6.addConstraint(Sketcher.Constraint("Tangent", 26, 1, 27, 2))
sketch6.addConstraint(Sketcher.Constraint("Tangent", 27, 1, 28, 1))
sketch6.addConstraint(Sketcher.Constraint("Tangent", 28, 2, 29, 2))
sketch6.addConstraint(Sketcher.Constraint("Tangent", 29, 1, 30, 2))
sketch6.addConstraint(Sketcher.Constraint("Tangent", 30, 1, 31, 1))
sketch6.addConstraint(Sketcher.Constraint("Tangent", 31, 2, 32, 2))
sketch6.addConstraint(Sketcher.Constraint("Coincident", 32, 1, 25, 1))
sketch6.addConstraint(Sketcher.Constraint("Tangent", 33, 1, 34, 2))
sketch6.addConstraint(Sketcher.Constraint("Tangent", 34, 1, 35, 1))
sketch6.addConstraint(Sketcher.Constraint("Tangent", 35, 2, 36, 2))
sketch6.addConstraint(Sketcher.Constraint("Tangent", 36, 1, 37, 2))
sketch6.addConstraint(Sketcher.Constraint("Tangent", 37, 1, 38, 1))
sketch6.addConstraint(Sketcher.Constraint("Tangent", 38, 2, 39, 2))
sketch6.addConstraint(Sketcher.Constraint("Tangent", 39, 1, 40, 1))
sketch6.addConstraint(Sketcher.Constraint("Tangent", 40, 2, 33, 2))
sketch6.addConstraint(Sketcher.Constraint("Coincident", 2, 3, -1, 1))
sketch6.addConstraint(Sketcher.Constraint("Coincident", 6, 3, -1, 1))
sketch6.addConstraint(Sketcher.Constraint("Coincident", 10, 3, -1, 1))
sketch6.addConstraint(Sketcher.Constraint("Coincident", 14, 3, -1, 1))
sketch6.addConstraint(Sketcher.Constraint("Coincident", 18, 3, -1, 1))
sketch6.addConstraint(Sketcher.Constraint("Coincident", 22, 3, -1, 1))
sketch6.addConstraint(Sketcher.Constraint("Coincident", 28, 3, -1, 1))
sketch6.addConstraint(Sketcher.Constraint("Coincident", 32, 3, -1, 1))
sketch6.addConstraint(Sketcher.Constraint("Coincident", 35, 3, -1, 1))
sketch6.addConstraint(Sketcher.Constraint("Coincident", 39, 3, -1, 1))
sketch6.addConstraint(Sketcher.Constraint("Equal", 0, 1))
sketch6.addConstraint(Sketcher.Constraint("Equal", 1, 3))
sketch6.addConstraint(Sketcher.Constraint("Equal", 3, 4))
sketch6.addConstraint(Sketcher.Constraint("Equal", 4, 5))
sketch6.addConstraint(Sketcher.Constraint("Equal", 5, 7))
sketch6.addConstraint(Sketcher.Constraint("Equal", 7, 8))
sketch6.addConstraint(Sketcher.Constraint("Equal", 8, 9))
sketch6.addConstraint(Sketcher.Constraint("Equal", 6, 10))
sketch6.addConstraint(Sketcher.Constraint("Equal", 9, 11))
sketch6.addConstraint(Sketcher.Constraint("Equal", 11, 12))
sketch6.addConstraint(Sketcher.Constraint("Equal", 12, 13))
sketch6.addConstraint(Sketcher.Constraint("Equal", 2, 14))
sketch6.addConstraint(Sketcher.Constraint("Equal", 13, 15))
sketch6.addConstraint(Sketcher.Constraint("Equal", 15, 16))
sketch6.addConstraint(Sketcher.Constraint("Equal", 16, 17))
sketch6.addConstraint(Sketcher.Constraint("Equal", 10, 18))
sketch6.addConstraint(Sketcher.Constraint("Equal", 17, 19))
sketch6.addConstraint(Sketcher.Constraint("Equal", 19, 20))
sketch6.addConstraint(Sketcher.Constraint("Equal", 20, 21))
sketch6.addConstraint(Sketcher.Constraint("Equal", 14, 22))
sketch6.addConstraint(Sketcher.Constraint("Equal", 22, 23))
sketch6.addConstraint(Sketcher.Constraint("Equal", 21, 24))
sketch6.addConstraint(Sketcher.Constraint("Equal", 24, 26))
sketch6.addConstraint(Sketcher.Constraint("Equal", 26, 27))
sketch6.addConstraint(Sketcher.Constraint("Equal", 23, 28))
sketch6.addConstraint(Sketcher.Constraint("Equal", 27, 29))
sketch6.addConstraint(Sketcher.Constraint("Equal", 29, 30))
sketch6.addConstraint(Sketcher.Constraint("Equal", 30, 31))
sketch6.addConstraint(Sketcher.Constraint("Equal", 18, 32))
sketch6.addConstraint(Sketcher.Constraint("Equal", 31, 33))
sketch6.addConstraint(Sketcher.Constraint("Equal", 33, 34))
sketch6.addConstraint(Sketcher.Constraint("Equal", 28, 35))
sketch6.addConstraint(Sketcher.Constraint("Equal", 34, 36))
sketch6.addConstraint(Sketcher.Constraint("Equal", 36, 37))
sketch6.addConstraint(Sketcher.Constraint("Equal", 37, 38))
sketch6.addConstraint(Sketcher.Constraint("Equal", 32, 39))
sketch6.addConstraint(Sketcher.Constraint("Equal", 38, 40))
sketch6.addConstraint(Sketcher.Constraint("Symmetric", 12, 1, 15, 1, -2))
sketch6.addConstraint(Sketcher.Constraint("Symmetric", 3, 1, 20, 1, -2))
sketch6.addConstraint(Sketcher.Constraint("Symmetric", 0, 1, 24, 1, -2))
sketch6.addConstraint(Sketcher.Constraint("Symmetric", 29, 1, 33, 1, -2))
sketch6.addConstraint(Sketcher.Constraint("Symmetric", 26, 1, 36, 1, -2))
sketch6.addConstraint(Sketcher.Constraint("PointOnObject", 22, 2, -1))
sketch6.addConstraint(Sketcher.Constraint("Radius", 0, 2.0))
sketch6.addConstraint(Sketcher.Constraint("Radius", 2, 27.0))
sketch6.addConstraint(Sketcher.Constraint("Radius", 6, 24.5))
sketch6.addConstraint(Sketcher.Constraint("DistanceX", 5, 3, -1, 1, 21.977599))
sketch6.addConstraint(Sketcher.Constraint("DistanceY", 12, 1, -1, 1, 24.379299))
sketch6.addConstraint(Sketcher.Constraint("Distance", 25, 1.11225))
sketch6.addConstraint(Sketcher.Constraint("DistanceX", 0, 3, -1, 1, 24.852351))
sketch6.addConstraint(Sketcher.Constraint("DistanceY", 8, 3, -1, 1, 22.797612))
sketch6.addConstraint(Sketcher.Constraint("DistanceY", -1, 1, 26, 3, 12.412941))
sketch6.addConstraint(Sketcher.Constraint("DistanceY", -1, 1, 29, 3, 24.474369))
sketch6.addConstraint(Sketcher.Constraint("DistanceY", 3, 1, -1, 1, 16.12739))
sketch6.addConstraint(Sketcher.Constraint("DistanceX", -1, 1, 26, 1, 21.640092))
sketch6.addConstraint(Sketcher.Constraint("DistanceY", -1, 1, 29, 1, 25.034511))
sketch6.addConstraint(Sketcher.Constraint("DistanceX", 0, 1, -1, 1, 25.978377))
pocket3 = doc.addObject("PartDesign::Pocket", "Pocket002")
body.addObject(pocket3)
pocket3.Profile = sketch6
pocket3.Length = 12.07
doc.recompute()

fillet2 = doc.addObject("PartDesign::Fillet", "Fillet001")
body.addObject(fillet2)
fillet2.Base = (pocket3, edges_at(pocket3, [(20.084, 14.032, 2)]))
fillet2.Radius = 2

doc.recompute()
